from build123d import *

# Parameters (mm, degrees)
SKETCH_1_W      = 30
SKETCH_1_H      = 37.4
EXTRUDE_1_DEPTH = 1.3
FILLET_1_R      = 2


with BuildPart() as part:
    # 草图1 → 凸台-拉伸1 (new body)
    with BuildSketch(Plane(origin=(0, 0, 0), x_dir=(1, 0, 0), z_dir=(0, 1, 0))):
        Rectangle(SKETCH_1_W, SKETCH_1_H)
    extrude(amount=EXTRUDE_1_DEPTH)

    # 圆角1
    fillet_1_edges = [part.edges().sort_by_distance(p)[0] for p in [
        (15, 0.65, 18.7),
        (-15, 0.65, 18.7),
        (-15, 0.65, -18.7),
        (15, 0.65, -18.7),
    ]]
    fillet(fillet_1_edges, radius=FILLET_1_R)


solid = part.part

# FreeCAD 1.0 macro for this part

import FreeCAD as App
import Part
import Sketcher
Q = App.Units.Quantity


def edges_at(feature, points):
    """Names of the edges that pass closest to the given points."""
    edges = feature.Shape.Edges
    near = lambda p: min(range(len(edges)), key=lambda i: edges[i].distToShape(Part.Vertex(*p))[0])
    return sorted({f"Edge{near(p) + 1}" for p in points})


def add_polygon(sketch, points):
    """Adds a closed chain of lines whose ends are joined by coincident constraints."""
    first, n = sketch.GeometryCount, len(points)
    for a, b in zip(points, points[1:] + points[:1]):
        sketch.addGeometry(Part.LineSegment(App.Vector(*a, 0), App.Vector(*b, 0)), False)
    for i in range(n):
        sketch.addConstraint(Sketcher.Constraint("Coincident", first + i, 2, first + (i + 1) % n, 1))

doc = App.newDocument("Part")
params = doc.addObject("Spreadsheet::Sheet", "Params")
for row, (alias, value) in enumerate([
    ("sketch1_width", "30 mm"),
    ("sketch1_height", "37.4 mm"),
    ("pad1_length", "1.3 mm"),
    ("fillet_radius", "2 mm"),
], start=1):
    params.set(f"A{row}", alias)
    params.set(f"B{row}", "=" + value)
    params.setAlias(f"B{row}", alias)

body = doc.addObject("PartDesign::Body", "Body")

# Sketch on XZ plane
sketch1 = body.newObject("Sketcher::SketchObject", "Sketch")
sketch1.AttachmentSupport = (doc.getObject("XZ_Plane"), [""])
sketch1.MapMode = "FlatFace"
add_polygon(sketch1, [(-15, -19), (-15, 19), (15, 19), (15, -19)])  # lines 0-3
sketch1.addConstraint([
    Sketcher.Constraint("Vertical", 0),
    Sketcher.Constraint("Horizontal", 1),
    Sketcher.Constraint("Vertical", 2),
    Sketcher.Constraint("Horizontal", 3),
    Sketcher.Constraint("Symmetric", 0, 2, 2, 2, -1, 1),
    Sketcher.Constraint("DistanceX", 1, 1, 1, 2, Q("30 mm")),
    Sketcher.Constraint("DistanceY", 0, 1, 0, 2, Q("37.4 mm")),
])
sketch1.setExpression("Constraints[9]", "Params.sketch1_width")
sketch1.setExpression("Constraints[10]", "Params.sketch1_height")
pad1 = body.newObject("PartDesign::Pad", "Pad")
pad1.Profile = sketch1
pad1.setExpression("Length", "Params.pad1_length")
pad1.Reversed = True
doc.recompute()

fillet = body.newObject("PartDesign::Fillet", "Fillet")
fillet.Base = (pad1, edges_at(pad1, [
    (15, 0.65, 18.7),
    (-15, 0.65, 18.7),
    (-15, 0.65, -18.7),
    (15, 0.65, -18.7),
]))
fillet.setExpression("Radius", "Params.fillet_radius")

doc.recompute()
